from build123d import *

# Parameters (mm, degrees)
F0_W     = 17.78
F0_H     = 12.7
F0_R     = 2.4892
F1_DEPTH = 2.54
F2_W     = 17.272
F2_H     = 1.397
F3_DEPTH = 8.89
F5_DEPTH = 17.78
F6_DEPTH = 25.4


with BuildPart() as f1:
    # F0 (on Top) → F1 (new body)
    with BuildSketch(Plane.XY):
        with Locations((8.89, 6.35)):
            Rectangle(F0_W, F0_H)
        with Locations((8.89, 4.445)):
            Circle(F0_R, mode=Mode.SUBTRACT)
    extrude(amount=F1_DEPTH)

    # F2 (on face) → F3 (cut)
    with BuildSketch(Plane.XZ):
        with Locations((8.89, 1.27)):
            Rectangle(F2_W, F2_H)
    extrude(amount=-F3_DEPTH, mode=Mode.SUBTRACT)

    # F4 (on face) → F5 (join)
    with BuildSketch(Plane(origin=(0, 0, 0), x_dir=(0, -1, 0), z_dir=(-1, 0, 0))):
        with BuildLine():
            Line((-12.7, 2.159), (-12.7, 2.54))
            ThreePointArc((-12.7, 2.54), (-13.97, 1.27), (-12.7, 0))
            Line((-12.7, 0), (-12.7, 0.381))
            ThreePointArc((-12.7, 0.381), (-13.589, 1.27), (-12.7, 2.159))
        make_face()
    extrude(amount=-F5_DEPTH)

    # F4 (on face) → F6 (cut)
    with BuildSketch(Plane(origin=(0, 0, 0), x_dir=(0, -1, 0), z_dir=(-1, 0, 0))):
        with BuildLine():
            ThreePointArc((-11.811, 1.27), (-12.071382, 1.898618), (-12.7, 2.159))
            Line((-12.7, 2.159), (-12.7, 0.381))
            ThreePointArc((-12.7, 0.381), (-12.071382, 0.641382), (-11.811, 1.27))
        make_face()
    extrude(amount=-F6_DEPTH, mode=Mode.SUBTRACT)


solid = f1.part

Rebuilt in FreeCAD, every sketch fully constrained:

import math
import FreeCAD as App
import Part
import Sketcher
Q = App.Units.Quantity


def add_polygon(sketch, points):
    """Adds a closed chain of lines whose ends are joined by coincident constraints."""
    first, n = sketch.GeometryCount, len(points)
    for a, b in zip(points, points[1:] + points[:1]):
        sketch.addGeometry(Part.LineSegment(App.Vector(*a, 0), App.Vector(*b, 0)), False)
    for i in range(n):
        sketch.addConstraint(Sketcher.Constraint("Coincident", first + i, 2, first + (i + 1) % n, 1))

doc = App.newDocument("Part")
params = doc.addObject("Spreadsheet::Sheet", "Params")
for row, (alias, value) in enumerate([
    ("sketch1_diameter", "0.196 in"),
    ("sketch1_width", "0.7 in"),
    ("sketch1_height", "0.5 in"),
    ("pad1_length", "0.1 in"),
    ("sketch2_width", "0.68 in"),
    ("sketch2_height", "0.055 in"),
    ("pocket1_length", "0.35 in"),
    ("sketch3_radius", "0.05 in"),
    ("sketch3_radius2", "0.035 in"),
    ("pad2_length", "0.7 in"),
    ("sketch4_radius", "0.035 in"),
    ("pocket2_length", "1 in"),
], start=1):
    params.set(f"A{row}", alias)
    params.set(f"B{row}", "=" + value)
    params.setAlias(f"B{row}", alias)

body = doc.addObject("PartDesign::Body", "Body")

sketch1 = body.newObject("Sketcher::SketchObject", "Sketch")
sketch1.AttachmentSupport = (doc.getObject("XY_Plane"), [""])
sketch1.MapMode = "FlatFace"
add_polygon(sketch1, [(0, 12.7), (0, 0), (17.8, 0), (17.8, 12.7)])
sketch1.addGeometry(Part.Circle(App.Vector(8.9, 4.4, 0), App.Vector(0, 0, 1), 2.5), False)
sketch1.addConstraint([
    Sketcher.Constraint("Vertical", 0),
    Sketcher.Constraint("Horizontal", 1),
    Sketcher.Constraint("Vertical", 2),
    Sketcher.Constraint("Horizontal", 3),
    Sketcher.Constraint("Coincident", 0, 2, -1, 1),
    Sketcher.Constraint("Diameter", 4, Q("0.196 in")),
    Sketcher.Constraint("DistanceX", 1, 1, 1, 2, Q("0.7 in")),
    Sketcher.Constraint("DistanceY", 0, 2, 0, 1, Q("0.5 in")),
    Sketcher.Constraint("DistanceX", -1, 1, 4, 3, Q("0.35 in")),
    Sketcher.Constraint("DistanceY", -1, 1, 4, 3, Q("0.175 in")),
])
sketch1.setExpression("Constraints[9]", "Params.sketch1_diameter")
sketch1.setExpression("Constraints[10]", "Params.sketch1_width")
sketch1.setExpression("Constraints[11]", "Params.sketch1_height")
pad1 = body.newObject("PartDesign::Pad", "Pad")
pad1.Profile = sketch1
pad1.setExpression("Length", "Params.pad1_length")

sketch2 = body.newObject("Sketcher::SketchObject", "Sketch001")
sketch2.AttachmentSupport = (doc.getObject("XZ_Plane"), [""])
sketch2.MapMode = "FlatFace"
add_polygon(sketch2, [(0.3, 2), (0.3, 0.6), (17.5, 0.6), (17.5, 2)])
sketch2.addConstraint([
    Sketcher.Constraint("Vertical", 0),
    Sketcher.Constraint("Horizontal", 1),
    Sketcher.Constraint("Vertical", 2),
    Sketcher.Constraint("Horizontal", 3),
    Sketcher.Constraint("DistanceX", 1, 1, 1, 2, Q("0.68 in")),
    Sketcher.Constraint("DistanceY", 0, 2, 0, 1, Q("0.055 in")),
    Sketcher.Constraint("DistanceX", -1, 1, 0, 2, Q("0.01 in")),
    Sketcher.Constraint("DistanceY", -1, 1, 0, 2, Q("0.0225 in")),
])
sketch2.setExpression("Constraints[8]", "Params.sketch2_width")
sketch2.setExpression("Constraints[9]", "Params.sketch2_height")
pocket1 = body.newObject("PartDesign::Pocket", "Pocket")
pocket1.Profile = sketch2
pocket1.setExpression("Length", "Params.pocket1_length")

sketch3 = body.newObject("Sketcher::SketchObject", "Sketch002")
sketch3.AttachmentSupport = (doc.getObject("YZ_Plane"), [""])
sketch3.MapMode = "FlatFace"
sketch3.addGeometry([
    Part.LineSegment(App.Vector(12.7, 2.16, 0), App.Vector(12.7, 2.54, 0)),
    Part.ArcOfCircle(Part.Circle(App.Vector(12.7, 1.27, 0), App.Vector(0, 0, 1), 1.27), math.radians(-90), math.radians(90)),
    Part.LineSegment(App.Vector(12.7, 0, 0), App.Vector(12.7, 0.38, 0)),
    Part.ArcOfCircle(Part.Circle(App.Vector(12.7, 1.27, 0), App.Vector(0, 0, 1), 0.89), math.radians(-90), math.radians(90)),
], False)
sketch3.addConstraint([
    Sketcher.Constraint("Coincident", 0, 2, 1, 2),
    Sketcher.Constraint("Coincident", 1, 1, 2, 1),
    Sketcher.Constraint("Coincident", 2, 2, 3, 1),
    Sketcher.Constraint("Coincident", 3, 2, 0, 1),
    Sketcher.Constraint("Vertical", 0),
    Sketcher.Constraint("Vertical", 2),
    Sketcher.Constraint("Coincident", 3, 3, 1, 3),
    Sketcher.Constraint("PointOnObject", 1, 1, -1),
    Sketcher.Constraint("Vertical", 3, 3, 0, 2),
    Sketcher.Constraint("Vertical", 0, 2, 1, 1),
    Sketcher.Constraint("Radius", 1, Q("0.05 in")),
    Sketcher.Constraint("Radius", 3, Q("0.035 in")),
    Sketcher.Constraint("DistanceX", -1, 1, 1, 3, Q("0.5 in")),
])
sketch3.setExpression("Constraints[10]", "Params.sketch3_radius")
sketch3.setExpression("Constraints[11]", "Params.sketch3_radius2")
pad2 = body.newObject("PartDesign::Pad", "Pad001")
pad2.Profile = sketch3
pad2.setExpression("Length", "Params.pad2_length")

sketch4 = body.newObject("Sketcher::SketchObject", "Sketch003")
sketch4.AttachmentSupport = (doc.getObject("YZ_Plane"), [""])
sketch4.MapMode = "FlatFace"
sketch4.addGeometry([
    Part.ArcOfCircle(Part.Circle(App.Vector(12.7, 1.3, 0), App.Vector(0, 0, 1), 0.9), math.radians(90), math.radians(180)),
    Part.LineSegment(App.Vector(12.7, 2.2, 0), App.Vector(12.7, 0.4, 0)),
    Part.ArcOfCircle(Part.Circle(App.Vector(12.7, 1.3, 0), App.Vector(0, 0, 1), 0.9), math.radians(180), math.radians(270)),
], False)
sketch4.addConstraint([
    Sketcher.Constraint("Coincident", 0, 1, 1, 1),
    Sketcher.Constraint("Coincident", 1, 2, 2, 2),
    Sketcher.Constraint("Tangent", 2, 1, 0, 2),
    Sketcher.Constraint("Vertical", 1),
    Sketcher.Constraint("Equal", 0, 2),
    Sketcher.Constraint("Horizontal", 0, 3, 2, 1),
    Sketcher.Constraint("Vertical", 2, 3, 0, 1),
    Sketcher.Constraint("Radius", 0, Q("0.035 in")),
    Sketcher.Constraint("DistanceX", -1, 1, 0, 3, Q("0.5 in")),
    Sketcher.Constraint("DistanceY", -1, 1, 0, 3, Q("0.05 in")),
])
sketch4.setExpression("Constraints[7]", "Params.sketch4_radius")
pocket2 = body.newObject("PartDesign::Pocket", "Pocket001")
pocket2.Profile = sketch4
pocket2.setExpression("Length", "Params.pocket2_length")
pocket2.Reversed = True

doc.recompute()
